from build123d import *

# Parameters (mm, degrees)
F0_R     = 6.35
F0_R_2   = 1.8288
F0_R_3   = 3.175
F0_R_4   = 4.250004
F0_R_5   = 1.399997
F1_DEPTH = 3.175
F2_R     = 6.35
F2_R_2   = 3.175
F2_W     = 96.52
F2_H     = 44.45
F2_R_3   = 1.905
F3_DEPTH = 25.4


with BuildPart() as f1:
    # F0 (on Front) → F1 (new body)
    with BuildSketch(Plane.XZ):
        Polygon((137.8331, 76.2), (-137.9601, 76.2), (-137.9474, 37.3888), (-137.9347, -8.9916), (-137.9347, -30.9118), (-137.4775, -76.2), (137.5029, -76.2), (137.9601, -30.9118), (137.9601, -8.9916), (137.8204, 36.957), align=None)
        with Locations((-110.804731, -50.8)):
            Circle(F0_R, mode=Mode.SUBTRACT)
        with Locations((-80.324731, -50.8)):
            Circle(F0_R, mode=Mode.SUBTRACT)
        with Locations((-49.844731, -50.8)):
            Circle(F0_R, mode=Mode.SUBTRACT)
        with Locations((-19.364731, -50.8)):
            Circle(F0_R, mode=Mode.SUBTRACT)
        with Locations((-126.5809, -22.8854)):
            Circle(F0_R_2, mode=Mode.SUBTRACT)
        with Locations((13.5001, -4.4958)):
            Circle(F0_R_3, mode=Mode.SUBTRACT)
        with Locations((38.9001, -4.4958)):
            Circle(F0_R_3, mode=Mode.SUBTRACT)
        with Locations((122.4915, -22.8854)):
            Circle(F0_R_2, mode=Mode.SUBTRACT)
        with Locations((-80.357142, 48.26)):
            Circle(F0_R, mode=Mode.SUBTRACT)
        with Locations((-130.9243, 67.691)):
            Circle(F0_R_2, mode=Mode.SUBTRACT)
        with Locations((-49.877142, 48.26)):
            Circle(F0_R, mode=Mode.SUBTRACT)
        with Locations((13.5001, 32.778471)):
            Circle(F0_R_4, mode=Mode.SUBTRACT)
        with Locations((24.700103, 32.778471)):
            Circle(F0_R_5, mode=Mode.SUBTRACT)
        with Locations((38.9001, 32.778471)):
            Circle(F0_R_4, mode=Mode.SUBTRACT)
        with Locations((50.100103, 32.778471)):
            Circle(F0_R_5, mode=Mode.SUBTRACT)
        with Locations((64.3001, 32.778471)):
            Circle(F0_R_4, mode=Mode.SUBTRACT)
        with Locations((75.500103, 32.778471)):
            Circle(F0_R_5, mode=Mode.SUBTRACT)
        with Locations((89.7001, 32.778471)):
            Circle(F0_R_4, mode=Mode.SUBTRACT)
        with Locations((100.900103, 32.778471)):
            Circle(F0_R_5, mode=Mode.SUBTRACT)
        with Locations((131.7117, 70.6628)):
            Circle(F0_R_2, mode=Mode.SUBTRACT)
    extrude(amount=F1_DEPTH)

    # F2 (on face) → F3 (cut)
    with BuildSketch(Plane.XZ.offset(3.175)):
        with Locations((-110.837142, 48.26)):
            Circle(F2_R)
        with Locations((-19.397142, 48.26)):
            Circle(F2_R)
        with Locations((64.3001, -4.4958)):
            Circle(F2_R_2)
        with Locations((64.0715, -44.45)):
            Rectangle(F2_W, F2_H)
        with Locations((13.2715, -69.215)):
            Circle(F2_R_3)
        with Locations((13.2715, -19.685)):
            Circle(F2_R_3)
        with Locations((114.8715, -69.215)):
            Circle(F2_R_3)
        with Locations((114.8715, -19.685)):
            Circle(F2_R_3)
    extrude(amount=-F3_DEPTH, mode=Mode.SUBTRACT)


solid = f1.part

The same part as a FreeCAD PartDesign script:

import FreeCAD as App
import Part
import Sketcher
from FreeCAD import Vector
Q = App.Units.Quantity


def add_polygon(sketch, points):
    """Adds a closed chain of lines whose ends are joined by coincident constraints."""
    first, n = sketch.GeometryCount, len(points)
    for a, b in zip(points, points[1:] + points[:1]):
        sketch.addGeometry(Part.LineSegment(App.Vector(*a, 0), App.Vector(*b, 0)), False)
    for i in range(n):
        sketch.addConstraint(Sketcher.Constraint("Coincident", first + i, 2, first + (i + 1) % n, 1))

doc = App.newDocument("Part")
body = doc.addObject("PartDesign::Body", "Body")

# Sketch on XZ plane
sketch1 = body.newObject("Sketcher::SketchObject", "Sketch")
sketch1.AttachmentSupport = (doc.getObject("XZ_Plane"), [""])
sketch1.MapMode = "FlatFace"
add_polygon(sketch1, [(137.8, 76.2), (-138, 76.2), (-137.9, 37.4), (-137.9, -9), (-137.9, -30.9), (-137.5, -76.2), (137.5, -76.2), (138, -30.9), (138, -9), (137.8, 37)])  # lines 0-9
sketch1.addGeometry(Part.Circle(Vector(-110.8, -50.8, 0), Vector(0, 0, 1), 6.3), False)  # 10
sketch1.addGeometry(Part.Circle(Vector(-80.3, -50.8, 0), Vector(0, 0, 1), 6.3), False)  # 11
sketch1.addGeometry(Part.Circle(Vector(-49.8, -50.8, 0), Vector(0, 0, 1), 6.3), False)  # 12
sketch1.addGeometry(Part.Circle(Vector(-19.4, -50.8, 0), Vector(0, 0, 1), 6.3), False)  # 13
sketch1.addGeometry(Part.Circle(Vector(-126.6, -22.9, 0), Vector(0, 0, 1), 1.8), False)  # 14
sketch1.addGeometry(Part.Circle(Vector(13.5, -4.5, 0), Vector(0, 0, 1), 3.2), False)  # 15
sketch1.addGeometry(Part.Circle(Vector(38.9, -4.5, 0), Vector(0, 0, 1), 3.2), False)  # 16
sketch1.addGeometry(Part.Circle(Vector(122.5, -22.9, 0), Vector(0, 0, 1), 1.8), False)  # 17
sketch1.addGeometry(Part.Circle(Vector(-80.4, 48.3, 0), Vector(0, 0, 1), 6.3), False)  # 18
sketch1.addGeometry(Part.Circle(Vector(-130.9, 67.7, 0), Vector(0, 0, 1), 1.8), False)  # 19
sketch1.addGeometry(Part.Circle(Vector(-49.9, 48.3, 0), Vector(0, 0, 1), 6.3), False)  # 20
sketch1.addGeometry(Part.Circle(Vector(13.5, 32.8, 0), Vector(0, 0, 1), 4.3), False)  # 21
sketch1.addGeometry(Part.Circle(Vector(24.7, 32.8, 0), Vector(0, 0, 1), 1.4), False)  # 22
sketch1.addGeometry(Part.Circle(Vector(38.9, 32.8, 0), Vector(0, 0, 1), 4.3), False)  # 23
sketch1.addGeometry(Part.Circle(Vector(50.1, 32.8, 0), Vector(0, 0, 1), 1.4), False)  # 24
sketch1.addGeometry(Part.Circle(Vector(64.3, 32.8, 0), Vector(0, 0, 1), 4.3), False)  # 25
sketch1.addGeometry(Part.Circle(Vector(75.5, 32.8, 0), Vector(0, 0, 1), 1.4), False)  # 26
sketch1.addGeometry(Part.Circle(Vector(89.7, 32.8, 0), Vector(0, 0, 1), 4.3), False)  # 27
sketch1.addGeometry(Part.Circle(Vector(100.9, 32.8, 0), Vector(0, 0, 1), 1.4), False)  # 28
sketch1.addGeometry(Part.Circle(Vector(131.7, 70.7, 0), Vector(0, 0, 1), 1.8), False)  # 29
sketch1.addConstraint([
    Sketcher.Constraint("Horizontal", 0),
    Sketcher.Constraint("Vertical", 3),
    Sketcher.Constraint("Horizontal", 5),
    Sketcher.Constraint("Vertical", 7),
    Sketcher.Constraint("Equal", 10, 11),
    Sketcher.Constraint("Equal", 11, 12),
    Sketcher.Constraint("Equal", 12, 13),
    Sketcher.Constraint("Equal", 15, 16),
    Sketcher.Constraint("Equal", 14, 17),
    Sketcher.Constraint("Equal", 13, 18),
    Sketcher.Constraint("Equal", 17, 19),
    Sketcher.Constraint("Equal", 18, 20),
    Sketcher.Constraint("Equal", 21, 23),
    Sketcher.Constraint("Equal", 22, 24),
    Sketcher.Constraint("Equal", 23, 25),
    Sketcher.Constraint("Equal", 24, 26),
    Sketcher.Constraint("Equal", 25, 27),
    Sketcher.Constraint("Equal", 26, 28),
    Sketcher.Constraint("Equal", 19, 29),
    Sketcher.Constraint("Horizontal", 10, 3, 11, 3),
    Sketcher.Constraint("Horizontal", 11, 3, 12, 3),
    Sketcher.Constraint("Horizontal", 12, 3, 13, 3),
    Sketcher.Constraint("Horizontal", 15, 3, 16, 3),
    Sketcher.Constraint("Horizontal", 14, 3, 17, 3),
    Sketcher.Constraint("Horizontal", 18, 3, 20, 3),
    Sketcher.Constraint("Horizontal", 21, 3, 22, 3),
    Sketcher.Constraint("Horizontal", 22, 3, 23, 3),
    Sketcher.Constraint("Horizontal", 23, 3, 24, 3),
    Sketcher.Constraint("Horizontal", 24, 3, 25, 3),
    Sketcher.Constraint("Horizontal", 25, 3, 26, 3),
    Sketcher.Constraint("Horizontal", 26, 3, 27, 3),
    Sketcher.Constraint("Horizontal", 27, 3, 28, 3),
    Sketcher.Constraint("Horizontal", 3, 2, 6, 2),
    Sketcher.Constraint("Horizontal", 2, 2, 7, 2),
    Sketcher.Constraint("Vertical", 15, 3, 21, 3),
    Sketcher.Constraint("Vertical", 16, 3, 23, 3),
    Sketcher.Constraint("Equal", 4, 6),
    Sketcher.Constraint("Diameter", 10, Q("0.5 in")),
    Sketcher.Constraint("Diameter", 15, Q("0.25 in")),
    Sketcher.Constraint("Diameter", 14, Q("0.144 in")),
    Sketcher.Constraint("DistanceY", 10, 3, -1, 1, Q("2 in")),
    Sketcher.Constraint("DistanceY", -1, 1, 0, 2, Q("3 in")),
    Sketcher.Constraint("DistanceY", 4, 2, -1, 1, Q("3 in")),
    Sketcher.Constraint("DistanceX", 15, 3, 16, 3, Q("1 in")),
    Sketcher.Constraint("DistanceX", 22, 3, 24, 3, Q("1 in")),
    Sketcher.Constraint("DistanceX", 23, 3, 25, 3, Q("1 in")),
    Sketcher.Constraint("DistanceX", 24, 3, 26, 3, Q("1 in")),
    Sketcher.Constraint("DistanceX", 25, 3, 27, 3, Q("1 in")),
    Sketcher.Constraint("DistanceX", 26, 3, 28, 3, Q("1 in")),
    Sketcher.Constraint("DistanceY", -1, 1, 18, 3, Q("1.9 in")),
    Sketcher.Constraint("DistanceX", 10, 3, 11, 3, Q("1.2 in")),
    Sketcher.Constraint("DistanceX", 11, 3, 12, 3, Q("1.2 in")),
    Sketcher.Constraint("DistanceX", 12, 3, 13, 3, Q("1.2 in")),
    Sketcher.Constraint("DistanceX", 18, 3, 20, 3, Q("1.2 in")),
    Sketcher.Constraint("DistanceX", 27, 3, 6, 2, Q("1.9 in")),
    Sketcher.Constraint("DistanceX", 0, 2, 0, 1, Q("10.858 in")),
    Sketcher.Constraint("DistanceX", 5, 1, 5, 2, Q("10.826 in")),
    Sketcher.Constraint("DistanceY", 3, 2, 3, 1, Q("0.863 in")),
    Sketcher.Constraint("Distance", 1, Q("1.5280001 in")),
    Sketcher.Constraint("Distance", 2, Q("1.8260001 in")),
    Sketcher.Constraint("Distance", 9, Q("1.5450001 in")),
    Sketcher.Constraint("DistanceY", 14, 3, -1, 1, Q("0.901 in")),
    Sketcher.Constraint("DistanceY", 15, 3, -1, 1, Q("0.177 in")),
    Sketcher.Constraint("DistanceY", -1, 1, 19, 3, Q("2.665 in")),
    Sketcher.Constraint("DistanceY", -1, 1, 29, 3, Q("2.782 in")),
    Sketcher.Constraint("DistanceX", 1, 2, -1, 1, Q("5.431 in")),
    Sketcher.Constraint("DistanceX", -1, 1, 8, 2, Q("5.426 in")),
    Sketcher.Constraint("DistanceX", 14, 3, 15, 3, Q("5.515 in")),
    Sketcher.Constraint("DistanceX", 16, 3, 17, 3, Q("3.291 in")),
    Sketcher.Constraint("DistanceX", 19, 3, 14, 3, Q("0.171 in")),
    Sketcher.Constraint("DistanceX", 27, 3, 29, 3, Q("1.654 in")),
    Sketcher.Constraint("DistanceX", 0, 2, 19, 3, Q("0.277 in")),
    Sketcher.Constraint("DistanceX", 2, 2, 14, 3, Q("0.447 in")),
    Sketcher.Constraint("Diameter", 21, 8.500008),
    Sketcher.Constraint("Diameter", 22, 2.799994),
    Sketcher.Constraint("DistanceX", 14, 3, -1, 1, Q("4.9835 in")),
    Sketcher.Constraint("DistanceX", 10, 3, -1, 1, 110.804731),
    Sketcher.Constraint("DistanceX", 18, 3, -1, 1, 80.357142),
    Sketcher.Constraint("DistanceY", -1, 1, 21, 3, 32.778471),
    Sketcher.Constraint("DistanceX", -1, 1, 22, 3, 24.700103),
])
pad1 = body.newObject("PartDesign::Pad", "Pad")
pad1.Profile = sketch1
pad1.Length = Q("0.125 in")

# Sketch on XZ plane
sketch2 = body.newObject("Sketcher::SketchObject", "Sketch001")
sketch2.AttachmentSupport = (doc.getObject("XZ_Plane"), [""])
sketch2.MapMode = "FlatFace"
sketch2.AttachmentOffset = App.Placement(Vector(0, 0, 0.125 * 25.4), App.Rotation())
sketch2.addGeometry(Part.Circle(Vector(-110.8, 48.3, 0), Vector(0, 0, 1), 6.3), False)  # 0
sketch2.addGeometry(Part.Circle(Vector(-19.4, 48.3, 0), Vector(0, 0, 1), 6.3), False)  # 1
sketch2.addGeometry(Part.Circle(Vector(64.3, -4.5, 0), Vector(0, 0, 1), 3.2), False)  # 2
add_polygon(sketch2, [(15.8, -22.2), (15.8, -66.7), (112.3, -66.7), (112.3, -22.2)])  # lines 3-6
sketch2.addGeometry(Part.Circle(Vector(13.3, -69.2, 0), Vector(0, 0, 1), 1.9), False)  # 7
sketch2.addGeometry(Part.Circle(Vector(13.3, -19.7, 0), Vector(0, 0, 1), 1.9), False)  # 8
sketch2.addGeometry(Part.Circle(Vector(114.9, -69.2, 0), Vector(0, 0, 1), 1.9), False)  # 9
sketch2.addGeometry(Part.Circle(Vector(114.9, -19.7, 0), Vector(0, 0, 1), 1.9), False)  # 10
sketch2.addConstraint([
    Sketcher.Constraint("Vertical", 3),
    Sketcher.Constraint("Horizontal", 4),
    Sketcher.Constraint("Vertical", 5),
    Sketcher.Constraint("Horizontal", 6),
    Sketcher.Constraint("Equal", 0, 1),
    Sketcher.Constraint("Equal", 7, 8),
    Sketcher.Constraint("Equal", 8, 9),
    Sketcher.Constraint("Equal", 9, 10),
    Sketcher.Constraint("Horizontal", 0, 3, 1, 3),
    Sketcher.Constraint("Horizontal", 7, 3, 9, 3),
    Sketcher.Constraint("Horizontal", 8, 3, 10, 3),
    Sketcher.Constraint("Vertical", 7, 3, 8, 3),
    Sketcher.Constraint("Vertical", 9, 3, 10, 3),
    Sketcher.Constraint("Diameter", 0, Q("0.5 in")),
    Sketcher.Constraint("Diameter", 2, Q("0.25 in")),
    Sketcher.Constraint("Diameter", 7, Q("0.15 in")),
    Sketcher.Constraint("DistanceX", 4, 1, 4, 2, Q("3.8 in")),
    Sketcher.Constraint("DistanceX", 7, 3, 9, 3, Q("4 in")),
    Sketcher.Constraint("DistanceY", 3, 2, 3, 1, Q("1.75 in")),
    Sketcher.Constraint("DistanceY", -1, 1, 0, 3, Q("1.9 in")),
    Sketcher.Constraint("DistanceX", 0, 3, 1, 3, Q("3.6 in")),
    Sketcher.Constraint("DistanceX", 7, 3, 3, 2, Q("0.1 in")),
    Sketcher.Constraint("DistanceY", 7, 3, 3, 2, Q("0.1 in")),
    Sketcher.Constraint("DistanceY", 5, 2, 10, 3, Q("0.1 in")),
    Sketcher.Constraint("DistanceY", 2, 3, -1, 1, Q("0.177 in")),
    Sketcher.Constraint("DistanceY", 7, 3, -1, 1, Q("2.725 in")),
    Sketcher.Constraint("DistanceX", 7, 3, 2, 3, Q("2.009 in")),
    Sketcher.Constraint("DistanceX", -1, 1, 2, 3, Q("2.5315 in")),
    Sketcher.Constraint("DistanceX", 0, 3, -1, 1, 110.837142),
])
pocket1 = body.newObject("PartDesign::Pocket", "Pocket")
pocket1.Profile = sketch2
pocket1.Length = Q("1 in")

doc.recompute()
